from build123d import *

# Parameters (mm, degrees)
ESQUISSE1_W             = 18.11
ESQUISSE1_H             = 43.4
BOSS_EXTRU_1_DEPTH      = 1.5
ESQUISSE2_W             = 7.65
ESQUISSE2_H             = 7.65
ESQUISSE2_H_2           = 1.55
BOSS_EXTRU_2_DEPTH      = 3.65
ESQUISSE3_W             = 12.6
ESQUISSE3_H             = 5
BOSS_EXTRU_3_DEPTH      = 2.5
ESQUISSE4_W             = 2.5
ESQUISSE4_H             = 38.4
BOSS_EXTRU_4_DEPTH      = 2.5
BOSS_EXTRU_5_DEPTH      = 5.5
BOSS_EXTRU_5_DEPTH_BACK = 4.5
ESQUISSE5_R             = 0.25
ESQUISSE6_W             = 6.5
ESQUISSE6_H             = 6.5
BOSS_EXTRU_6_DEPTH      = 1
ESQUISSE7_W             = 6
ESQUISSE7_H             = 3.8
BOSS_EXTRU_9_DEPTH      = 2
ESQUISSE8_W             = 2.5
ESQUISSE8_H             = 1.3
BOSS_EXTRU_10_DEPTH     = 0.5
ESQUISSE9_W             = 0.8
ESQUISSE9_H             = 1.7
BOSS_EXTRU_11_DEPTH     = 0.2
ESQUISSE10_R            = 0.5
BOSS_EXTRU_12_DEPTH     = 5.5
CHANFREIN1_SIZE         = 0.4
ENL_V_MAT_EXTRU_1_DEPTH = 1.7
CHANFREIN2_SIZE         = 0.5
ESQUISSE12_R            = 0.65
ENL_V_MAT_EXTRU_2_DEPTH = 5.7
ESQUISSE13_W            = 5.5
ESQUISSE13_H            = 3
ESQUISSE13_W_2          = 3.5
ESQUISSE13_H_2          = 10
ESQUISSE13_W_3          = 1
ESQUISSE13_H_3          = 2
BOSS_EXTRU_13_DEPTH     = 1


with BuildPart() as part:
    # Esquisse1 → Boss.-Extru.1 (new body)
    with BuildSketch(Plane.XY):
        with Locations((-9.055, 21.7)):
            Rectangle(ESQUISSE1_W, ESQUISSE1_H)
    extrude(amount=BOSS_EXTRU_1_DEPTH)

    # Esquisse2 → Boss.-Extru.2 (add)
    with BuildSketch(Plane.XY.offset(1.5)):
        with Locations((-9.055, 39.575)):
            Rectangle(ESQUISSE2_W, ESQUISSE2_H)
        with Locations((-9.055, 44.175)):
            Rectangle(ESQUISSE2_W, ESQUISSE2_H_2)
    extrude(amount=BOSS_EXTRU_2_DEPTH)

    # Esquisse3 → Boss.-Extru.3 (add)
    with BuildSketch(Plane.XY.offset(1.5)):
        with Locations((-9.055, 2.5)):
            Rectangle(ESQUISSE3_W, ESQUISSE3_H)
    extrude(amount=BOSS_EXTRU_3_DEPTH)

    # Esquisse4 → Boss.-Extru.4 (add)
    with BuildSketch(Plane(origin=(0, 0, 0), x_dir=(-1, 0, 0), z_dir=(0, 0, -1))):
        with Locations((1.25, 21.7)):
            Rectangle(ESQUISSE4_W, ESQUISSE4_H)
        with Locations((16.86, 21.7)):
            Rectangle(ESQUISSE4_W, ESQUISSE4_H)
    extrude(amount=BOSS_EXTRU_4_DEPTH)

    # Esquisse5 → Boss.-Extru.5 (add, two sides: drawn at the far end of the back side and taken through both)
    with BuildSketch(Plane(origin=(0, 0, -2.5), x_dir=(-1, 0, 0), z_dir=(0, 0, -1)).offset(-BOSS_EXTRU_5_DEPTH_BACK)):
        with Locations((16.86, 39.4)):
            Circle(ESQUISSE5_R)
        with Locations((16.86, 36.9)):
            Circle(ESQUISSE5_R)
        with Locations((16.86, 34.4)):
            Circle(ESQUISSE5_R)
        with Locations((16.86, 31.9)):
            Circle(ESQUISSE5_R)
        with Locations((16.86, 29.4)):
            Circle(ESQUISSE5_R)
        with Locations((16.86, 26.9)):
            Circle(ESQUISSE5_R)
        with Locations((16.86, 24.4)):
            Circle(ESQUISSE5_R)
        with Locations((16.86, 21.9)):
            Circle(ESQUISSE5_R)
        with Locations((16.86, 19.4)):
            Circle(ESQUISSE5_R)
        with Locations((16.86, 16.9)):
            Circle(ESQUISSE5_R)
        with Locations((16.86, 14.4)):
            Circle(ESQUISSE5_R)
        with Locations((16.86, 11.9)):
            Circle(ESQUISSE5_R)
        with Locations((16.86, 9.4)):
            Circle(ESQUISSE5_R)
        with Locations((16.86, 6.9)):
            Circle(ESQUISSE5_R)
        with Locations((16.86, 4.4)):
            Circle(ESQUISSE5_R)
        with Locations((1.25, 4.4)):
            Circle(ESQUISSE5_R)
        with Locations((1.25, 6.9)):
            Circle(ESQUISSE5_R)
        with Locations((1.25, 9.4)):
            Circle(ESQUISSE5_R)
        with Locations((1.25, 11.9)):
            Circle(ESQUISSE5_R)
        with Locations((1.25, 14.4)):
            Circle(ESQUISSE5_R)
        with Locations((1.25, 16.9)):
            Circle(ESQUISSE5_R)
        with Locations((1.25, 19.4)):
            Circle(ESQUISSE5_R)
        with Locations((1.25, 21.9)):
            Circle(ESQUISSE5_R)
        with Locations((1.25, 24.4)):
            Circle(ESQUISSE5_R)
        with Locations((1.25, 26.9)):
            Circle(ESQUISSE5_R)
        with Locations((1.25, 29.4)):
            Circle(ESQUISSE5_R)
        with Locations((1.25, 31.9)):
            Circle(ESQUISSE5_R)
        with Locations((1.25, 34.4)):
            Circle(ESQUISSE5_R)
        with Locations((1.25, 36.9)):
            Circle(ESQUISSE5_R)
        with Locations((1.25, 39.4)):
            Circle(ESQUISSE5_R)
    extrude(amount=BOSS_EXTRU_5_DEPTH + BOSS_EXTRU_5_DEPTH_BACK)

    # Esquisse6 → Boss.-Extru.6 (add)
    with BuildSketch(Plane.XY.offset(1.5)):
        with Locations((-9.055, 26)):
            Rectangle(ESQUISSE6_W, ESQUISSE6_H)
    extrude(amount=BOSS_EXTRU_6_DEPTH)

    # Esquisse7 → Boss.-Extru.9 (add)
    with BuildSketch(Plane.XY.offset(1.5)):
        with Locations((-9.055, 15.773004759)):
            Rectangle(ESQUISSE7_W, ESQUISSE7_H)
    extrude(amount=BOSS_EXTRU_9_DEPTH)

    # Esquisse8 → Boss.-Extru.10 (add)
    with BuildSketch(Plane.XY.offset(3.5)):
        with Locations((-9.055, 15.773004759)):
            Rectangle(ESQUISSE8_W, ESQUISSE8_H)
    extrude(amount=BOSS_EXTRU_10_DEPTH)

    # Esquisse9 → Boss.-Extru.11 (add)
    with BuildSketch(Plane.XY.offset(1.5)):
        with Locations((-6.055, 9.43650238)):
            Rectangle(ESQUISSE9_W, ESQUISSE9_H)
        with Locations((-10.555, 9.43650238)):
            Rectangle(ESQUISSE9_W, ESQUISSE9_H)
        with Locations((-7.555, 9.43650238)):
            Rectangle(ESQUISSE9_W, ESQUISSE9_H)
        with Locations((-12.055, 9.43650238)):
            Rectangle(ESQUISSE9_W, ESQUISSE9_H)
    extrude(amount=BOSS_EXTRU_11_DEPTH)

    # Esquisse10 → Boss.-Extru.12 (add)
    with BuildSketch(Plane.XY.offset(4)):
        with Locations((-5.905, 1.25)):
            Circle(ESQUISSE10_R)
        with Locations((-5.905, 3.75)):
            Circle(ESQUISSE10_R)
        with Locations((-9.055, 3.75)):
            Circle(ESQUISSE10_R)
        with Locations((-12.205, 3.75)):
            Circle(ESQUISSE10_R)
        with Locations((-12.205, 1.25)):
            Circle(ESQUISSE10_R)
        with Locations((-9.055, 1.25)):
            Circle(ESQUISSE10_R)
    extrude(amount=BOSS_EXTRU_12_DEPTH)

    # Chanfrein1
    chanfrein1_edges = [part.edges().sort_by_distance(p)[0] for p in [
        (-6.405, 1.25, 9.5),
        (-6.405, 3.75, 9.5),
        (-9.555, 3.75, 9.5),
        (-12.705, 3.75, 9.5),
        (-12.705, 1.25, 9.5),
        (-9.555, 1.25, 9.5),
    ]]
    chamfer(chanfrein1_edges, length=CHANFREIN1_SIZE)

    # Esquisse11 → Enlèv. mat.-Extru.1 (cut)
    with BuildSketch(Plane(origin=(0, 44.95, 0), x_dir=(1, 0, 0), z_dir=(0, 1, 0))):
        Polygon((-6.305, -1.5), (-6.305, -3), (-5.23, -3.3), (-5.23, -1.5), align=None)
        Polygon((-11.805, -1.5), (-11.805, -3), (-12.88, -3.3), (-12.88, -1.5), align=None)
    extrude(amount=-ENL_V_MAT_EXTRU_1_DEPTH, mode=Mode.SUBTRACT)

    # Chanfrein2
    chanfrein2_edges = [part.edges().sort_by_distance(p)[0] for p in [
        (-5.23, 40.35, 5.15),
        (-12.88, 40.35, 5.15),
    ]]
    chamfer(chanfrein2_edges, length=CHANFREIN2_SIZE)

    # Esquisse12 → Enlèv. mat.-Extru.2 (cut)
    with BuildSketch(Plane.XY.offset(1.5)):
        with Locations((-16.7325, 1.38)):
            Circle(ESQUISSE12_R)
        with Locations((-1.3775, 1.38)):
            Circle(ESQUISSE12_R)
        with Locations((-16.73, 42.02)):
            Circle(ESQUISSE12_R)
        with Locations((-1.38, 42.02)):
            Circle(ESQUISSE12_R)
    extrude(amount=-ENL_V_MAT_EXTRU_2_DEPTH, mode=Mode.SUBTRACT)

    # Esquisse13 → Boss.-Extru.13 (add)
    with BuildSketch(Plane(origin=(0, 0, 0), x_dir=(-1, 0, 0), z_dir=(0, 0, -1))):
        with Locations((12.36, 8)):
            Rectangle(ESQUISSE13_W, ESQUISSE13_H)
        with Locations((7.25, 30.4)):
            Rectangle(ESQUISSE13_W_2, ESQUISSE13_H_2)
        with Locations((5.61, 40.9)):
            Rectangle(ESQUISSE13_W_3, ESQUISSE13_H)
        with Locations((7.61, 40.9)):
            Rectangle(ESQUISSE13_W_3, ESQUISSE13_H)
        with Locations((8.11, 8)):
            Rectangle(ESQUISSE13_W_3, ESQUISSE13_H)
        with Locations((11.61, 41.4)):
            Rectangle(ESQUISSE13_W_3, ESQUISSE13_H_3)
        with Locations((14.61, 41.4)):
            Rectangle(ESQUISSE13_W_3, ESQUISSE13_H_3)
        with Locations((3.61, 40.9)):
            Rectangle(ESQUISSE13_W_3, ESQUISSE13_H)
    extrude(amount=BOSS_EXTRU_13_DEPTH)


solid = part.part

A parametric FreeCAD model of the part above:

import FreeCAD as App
import Part
import Sketcher
from FreeCAD import Vector


def edges_at(feature, points):
    """Names of the edges that pass closest to the given points."""
    edges = feature.Shape.Edges
    near = lambda p: min(range(len(edges)), key=lambda i: edges[i].distToShape(Part.Vertex(*p))[0])
    return sorted({f"Edge{near(p) + 1}" for p in points})


def add_polygon(sketch, points):
    """Adds a closed chain of lines whose ends are joined by coincident constraints."""
    first, n = sketch.GeometryCount, len(points)
    for a, b in zip(points, points[1:] + points[:1]):
        sketch.addGeometry(Part.LineSegment(App.Vector(*a, 0), App.Vector(*b, 0)), False)
    for i in range(n):
        sketch.addConstraint(Sketcher.Constraint("Coincident", first + i, 2, first + (i + 1) % n, 1))

doc = App.newDocument("Part")
params = doc.addObject("Spreadsheet::Sheet", "Params")
for row, (alias, value) in enumerate([
    ("sketch1_height", "43.4 mm"),
    ("sketch1_width", "18.11 mm"),
    ("pad1_length", "1.5 mm"),
    ("sketch2_height", "9.2 mm"),
    ("sketch2_width", "7.65 mm"),
    ("pad2_length", "3.65 mm"),
    ("sketch3_height", "5 mm"),
    ("sketch3_width", "12.6 mm"),
    ("pad3_length", "2.5 mm"),
    ("sketch4_width", "2.5 mm"),
    ("sketch4_height", "38.4 mm"),
    ("pad4_length", "2.5 mm"),
    ("sketch5_diameter", "0.5 mm"),
    ("pad5_length", "5.5 mm"),
    ("pad5_length2", "4.5 mm"),
    ("sketch6_width", "6.5 mm"),
    ("pad6_length", "1 mm"),
    ("sketch7_width", "6 mm"),
    ("sketch7_height", "3.8 mm"),
    ("pad7_length", "2 mm"),
    ("sketch8_width", "2.5 mm"),
    ("sketch8_height", "1.3 mm"),
    ("pad8_length", "0.5 mm"),
    ("sketch9_width", "0.8 mm"),
    ("sketch9_height", "1.7 mm"),
    ("pad9_length", "0.2 mm"),
    ("sketch10_diameter", "1 mm"),
    ("pad10_length", "5.5 mm"),
    ("chamfer_size", "0.4 mm"),
    ("sketch11_height", "1.5 mm"),
    ("sketch11_height2", "1.8 mm"),
    ("pocket1_length", "1.7 mm"),
    ("chamfer2_size", "0.5 mm"),
    ("sketch12_diameter", "1.3 mm"),
    ("pocket2_length", "5.7 mm"),
    ("sketch13_width", "1 mm"),
    ("sketch13_height", "3 mm"),
    ("sketch13_height2", "10 mm"),
    ("sketch13_height3", "2 mm"),
    ("sketch13_width2", "5.5 mm"),
    ("pad11_length", "1 mm"),
], start=1):
    params.set(f"A{row}", alias)
    params.set(f"B{row}", "=" + value)
    params.setAlias(f"B{row}", alias)

body = doc.addObject("PartDesign::Body", "Body")

sketch1 = doc.addObject("Sketcher::SketchObject", "Sketch")
body.addObject(sketch1)
sketch1.AttachmentSupport = (doc.XY_Plane, [""])
sketch1.MapMode = "FlatFace"
add_polygon(sketch1, [(-18.11, 43.4), (-18.11, 0), (0, 0), (0, 43.4)])
sketch1.addConstraint(Sketcher.Constraint("Vertical", 0))
sketch1.addConstraint(Sketcher.Constraint("Horizontal", 1))
sketch1.addConstraint(Sketcher.Constraint("Vertical", 2))
sketch1.addConstraint(Sketcher.Constraint("Horizontal", 3))
sketch1.addConstraint(Sketcher.Constraint("Coincident", 1, 2, -1, 1))
sketch1.addConstraint(Sketcher.Constraint("DistanceY", 0, 2, 0, 1, 43.4))
sketch1.addConstraint(Sketcher.Constraint("DistanceX", 1, 1, 1, 2, 18.11))
sketch1.setExpression("Constraints[9]", "Params.sketch1_height")
sketch1.setExpression("Constraints[10]", "Params.sketch1_width")
pad1 = doc.addObject("PartDesign::Pad", "Pad")
body.addObject(pad1)
pad1.Profile = sketch1
pad1.setExpression("Length", "Params.pad1_length")

sketch2 = doc.addObject("Sketcher::SketchObject", "Sketch001")
body.addObject(sketch2)
sketch2.AttachmentSupport = (doc.XY_Plane, [""])
sketch2.MapMode = "FlatFace"
sketch2.AttachmentOffset = App.Placement(Vector(0, 0, 1.5), App.Rotation())
add_polygon(sketch2, [(-12.88, 35.75), (-5.23, 35.75), (-5.23, 44.95), (-12.88, 44.95)])
sketch2.addConstraint(Sketcher.Constraint("Horizontal", 0))
sketch2.addConstraint(Sketcher.Constraint("Vertical", 1))
sketch2.addConstraint(Sketcher.Constraint("Horizontal", 2))
sketch2.addConstraint(Sketcher.Constraint("Vertical", 3))
sketch2.addConstraint(Sketcher.Constraint("DistanceY", 1, 1, 1, 2, 9.2))
sketch2.addConstraint(Sketcher.Constraint("DistanceX", 0, 1, 0, 2, 7.65))
sketch2.addConstraint(Sketcher.Constraint("DistanceX", 0, 2, -1, 1, 5.23))
sketch2.addConstraint(Sketcher.Constraint("DistanceY", -1, 1, 0, 2, 35.75))
sketch2.setExpression("Constraints[8]", "Params.sketch2_height")
sketch2.setExpression("Constraints[9]", "Params.sketch2_width")
pad2 = doc.addObject("PartDesign::Pad", "Pad001")
body.addObject(pad2)
pad2.Profile = sketch2
pad2.setExpression("Length", "Params.pad2_length")

sketch3 = doc.addObject("Sketcher::SketchObject", "Sketch002")
body.addObject(sketch3)
sketch3.AttachmentSupport = (doc.XY_Plane, [""])
sketch3.MapMode = "FlatFace"
sketch3.AttachmentOffset = App.Placement(Vector(0, 0, 1.5), App.Rotation())
add_polygon(sketch3, [(-15.355, 5), (-15.355, 0), (-2.755, 0), (-2.755, 5)])
sketch3.addConstraint(Sketcher.Constraint("Vertical", 0))
sketch3.addConstraint(Sketcher.Constraint("Horizontal", 1))
sketch3.addConstraint(Sketcher.Constraint("Vertical", 2))
sketch3.addConstraint(Sketcher.Constraint("Horizontal", 3))
sketch3.addConstraint(Sketcher.Constraint("PointOnObject", 0, 2, -1))
sketch3.addConstraint(Sketcher.Constraint("DistanceY", 0, 2, 0, 1, 5.0))
sketch3.addConstraint(Sketcher.Constraint("DistanceX", 1, 1, 1, 2, 12.6))
sketch3.addConstraint(Sketcher.Constraint("DistanceX", 0, 2, -1, 1, 15.355))
sketch3.setExpression("Constraints[9]", "Params.sketch3_height")
sketch3.setExpression("Constraints[10]", "Params.sketch3_width")
pad3 = doc.addObject("PartDesign::Pad", "Pad002")
body.addObject(pad3)
pad3.Profile = sketch3
pad3.setExpression("Length", "Params.pad3_length")

sketch4 = doc.addObject("Sketcher::SketchObject", "Sketch003")
body.addObject(sketch4)
sketch4.AttachmentSupport = (doc.XY_Plane, [""])
sketch4.MapMode = "FlatFace"
add_polygon(sketch4, [(0, 40.9), (0, 2.5), (-2.5, 2.5), (-2.5, 40.9)])
add_polygon(sketch4, [(-15.61, 40.9), (-15.61, 2.5), (-18.11, 2.5), (-18.11, 40.9)])
sketch4.addConstraint(Sketcher.Constraint("Vertical", 0))
sketch4.addConstraint(Sketcher.Constraint("Horizontal", 1))
sketch4.addConstraint(Sketcher.Constraint("Vertical", 2))
sketch4.addConstraint(Sketcher.Constraint("Horizontal", 3))
sketch4.addConstraint(Sketcher.Constraint("Vertical", 4))
sketch4.addConstraint(Sketcher.Constraint("Horizontal", 5))
sketch4.addConstraint(Sketcher.Constraint("Vertical", 6))
sketch4.addConstraint(Sketcher.Constraint("Horizontal", 7))
sketch4.addConstraint(Sketcher.Constraint("PointOnObject", 0, 2, -2))
sketch4.addConstraint(Sketcher.Constraint("Horizontal", 1, 2, 4, 2))
sketch4.addConstraint(Sketcher.Constraint("Horizontal", 3, 2, 6, 2))
sketch4.addConstraint(Sketcher.Constraint("Equal", 3, 5))
sketch4.addConstraint(Sketcher.Constraint("DistanceX", 1, 2, 1, 1, 2.5))
sketch4.addConstraint(Sketcher.Constraint("DistanceY", 0, 2, 0, 1, 38.4))
sketch4.addConstraint(Sketcher.Constraint("DistanceY", -1, 1, 0, 2, 2.5))
sketch4.addConstraint(Sketcher.Constraint("DistanceX", 4, 2, -1, 1, 15.61))
sketch4.setExpression("Constraints[20]", "Params.sketch4_width")
sketch4.setExpression("Constraints[21]", "Params.sketch4_height")
pad4 = doc.addObject("PartDesign::Pad", "Pad003")
body.addObject(pad4)
pad4.Profile = sketch4
pad4.setExpression("Length", "Params.pad4_length")
pad4.Reversed = True

sketch5 = doc.addObject("Sketcher::SketchObject", "Sketch004")
body.addObject(sketch5)
sketch5.AttachmentSupport = (doc.XY_Plane, [""])
sketch5.MapMode = "FlatFace"
sketch5.AttachmentOffset = App.Placement(Vector(0, 0, -2.5), App.Rotation())
sketch5.addGeometry(Part.Circle(Vector(-16.86, 39.4, 0), Vector(0, 0, 1), 0.25), False)
sketch5.addGeometry(Part.Circle(Vector(-16.86, 36.9, 0), Vector(0, 0, 1), 0.25), False)
sketch5.addGeometry(Part.Circle(Vector(-16.86, 34.4, 0), Vector(0, 0, 1), 0.25), False)
sketch5.addGeometry(Part.Circle(Vector(-16.86, 31.9, 0), Vector(0, 0, 1), 0.25), False)
sketch5.addGeometry(Part.Circle(Vector(-16.86, 29.4, 0), Vector(0, 0, 1), 0.25), False)
sketch5.addGeometry(Part.Circle(Vector(-16.86, 26.9, 0), Vector(0, 0, 1), 0.25), False)
sketch5.addGeometry(Part.Circle(Vector(-16.86, 24.4, 0), Vector(0, 0, 1), 0.25), False)
sketch5.addGeometry(Part.Circle(Vector(-16.86, 21.9, 0), Vector(0, 0, 1), 0.25), False)
sketch5.addGeometry(Part.Circle(Vector(-16.86, 19.4, 0), Vector(0, 0, 1), 0.25), False)
sketch5.addGeometry(Part.Circle(Vector(-16.86, 16.9, 0), Vector(0, 0, 1), 0.25), False)
sketch5.addGeometry(Part.Circle(Vector(-16.86, 14.4, 0), Vector(0, 0, 1), 0.25), False)
sketch5.addGeometry(Part.Circle(Vector(-16.86, 11.9, 0), Vector(0, 0, 1), 0.25), False)
sketch5.addGeometry(Part.Circle(Vector(-16.86, 9.4, 0), Vector(0, 0, 1), 0.25), False)
sketch5.addGeometry(Part.Circle(Vector(-16.86, 6.9, 0), Vector(0, 0, 1), 0.25), False)
sketch5.addGeometry(Part.Circle(Vector(-16.86, 4.4, 0), Vector(0, 0, 1), 0.25), False)
sketch5.addGeometry(Part.Circle(Vector(-1.25, 4.4, 0), Vector(0, 0, 1), 0.25), False)
sketch5.addGeometry(Part.Circle(Vector(-1.25, 6.9, 0), Vector(0, 0, 1), 0.25), False)
sketch5.addGeometry(Part.Circle(Vector(-1.25, 9.4, 0), Vector(0, 0, 1), 0.25), False)
sketch5.addGeometry(Part.Circle(Vector(-1.25, 11.9, 0), Vector(0, 0, 1), 0.25), False)
sketch5.addGeometry(Part.Circle(Vector(-1.25, 14.4, 0), Vector(0, 0, 1), 0.25), False)
sketch5.addGeometry(Part.Circle(Vector(-1.25, 16.9, 0), Vector(0, 0, 1), 0.25), False)
sketch5.addGeometry(Part.Circle(Vector(-1.25, 19.4, 0), Vector(0, 0, 1), 0.25), False)
sketch5.addGeometry(Part.Circle(Vector(-1.25, 21.9, 0), Vector(0, 0, 1), 0.25), False)
sketch5.addGeometry(Part.Circle(Vector(-1.25, 24.4, 0), Vector(0, 0, 1), 0.25), False)
sketch5.addGeometry(Part.Circle(Vector(-1.25, 26.9, 0), Vector(0, 0, 1), 0.25), False)
sketch5.addGeometry(Part.Circle(Vector(-1.25, 29.4, 0), Vector(0, 0, 1), 0.25), False)
sketch5.addGeometry(Part.Circle(Vector(-1.25, 31.9, 0), Vector(0, 0, 1), 0.25), False)
sketch5.addGeometry(Part.Circle(Vector(-1.25, 34.4, 0), Vector(0, 0, 1), 0.25), False)
sketch5.addGeometry(Part.Circle(Vector(-1.25, 36.9, 0), Vector(0, 0, 1), 0.25), False)
sketch5.addGeometry(Part.Circle(Vector(-1.25, 39.4, 0), Vector(0, 0, 1), 0.25), False)
sketch5.addConstraint(Sketcher.Constraint("Equal", 0, 1))
sketch5.addConstraint(Sketcher.Constraint("Equal", 1, 2))
sketch5.addConstraint(Sketcher.Constraint("Equal", 2, 3))
sketch5.addConstraint(Sketcher.Constraint("Equal", 3, 4))
sketch5.addConstraint(Sketcher.Constraint("Equal", 4, 5))
sketch5.addConstraint(Sketcher.Constraint("Equal", 5, 6))
sketch5.addConstraint(Sketcher.Constraint("Equal", 6, 7))
sketch5.addConstraint(Sketcher.Constraint("Equal", 7, 8))
sketch5.addConstraint(Sketcher.Constraint("Equal", 8, 9))
sketch5.addConstraint(Sketcher.Constraint("Equal", 9, 10))
sketch5.addConstraint(Sketcher.Constraint("Equal", 10, 11))
sketch5.addConstraint(Sketcher.Constraint("Equal", 11, 12))
sketch5.addConstraint(Sketcher.Constraint("Equal", 12, 13))
sketch5.addConstraint(Sketcher.Constraint("Equal", 13, 14))
sketch5.addConstraint(Sketcher.Constraint("Equal", 14, 15))
sketch5.addConstraint(Sketcher.Constraint("Equal", 15, 16))
sketch5.addConstraint(Sketcher.Constraint("Equal", 16, 17))
sketch5.addConstraint(Sketcher.Constraint("Equal", 17, 18))
sketch5.addConstraint(Sketcher.Constraint("Equal", 18, 19))
sketch5.addConstraint(Sketcher.Constraint("Equal", 19, 20))
sketch5.addConstraint(Sketcher.Constraint("Equal", 20, 21))
sketch5.addConstraint(Sketcher.Constraint("Equal", 21, 22))
sketch5.addConstraint(Sketcher.Constraint("Equal", 22, 23))
sketch5.addConstraint(Sketcher.Constraint("Equal", 23, 24))
sketch5.addConstraint(Sketcher.Constraint("Equal", 24, 25))
sketch5.addConstraint(Sketcher.Constraint("Equal", 25, 26))
sketch5.addConstraint(Sketcher.Constraint("Equal", 26, 27))
sketch5.addConstraint(Sketcher.Constraint("Equal", 27, 28))
sketch5.addConstraint(Sketcher.Constraint("Equal", 28, 29))
sketch5.addConstraint(Sketcher.Constraint("Horizontal", 14, 3, 15, 3))
sketch5.addConstraint(Sketcher.Constraint("Horizontal", 13, 3, 16, 3))
sketch5.addConstraint(Sketcher.Constraint("Horizontal", 12, 3, 17, 3))
sketch5.addConstraint(Sketcher.Constraint("Horizontal", 11, 3, 18, 3))
sketch5.addConstraint(Sketcher.Constraint("Horizontal", 10, 3, 19, 3))
sketch5.addConstraint(Sketcher.Constraint("Horizontal", 9, 3, 20, 3))
sketch5.addConstraint(Sketcher.Constraint("Horizontal", 8, 3, 21, 3))
sketch5.addConstraint(Sketcher.Constraint("Horizontal", 7, 3, 22, 3))
sketch5.addConstraint(Sketcher.Constraint("Horizontal", 6, 3, 23, 3))
sketch5.addConstraint(Sketcher.Constraint("Horizontal", 5, 3, 24, 3))
sketch5.addConstraint(Sketcher.Constraint("Horizontal", 4, 3, 25, 3))
sketch5.addConstraint(Sketcher.Constraint("Horizontal", 3, 3, 26, 3))
sketch5.addConstraint(Sketcher.Constraint("Horizontal", 2, 3, 27, 3))
sketch5.addConstraint(Sketcher.Constraint("Horizontal", 1, 3, 28, 3))
sketch5.addConstraint(Sketcher.Constraint("Horizontal", 0, 3, 29, 3))
sketch5.addConstraint(Sketcher.Constraint("Vertical", 0, 3, 1, 3))
sketch5.addConstraint(Sketcher.Constraint("Vertical", 1, 3, 2, 3))
sketch5.addConstraint(Sketcher.Constraint("Vertical", 2, 3, 3, 3))
sketch5.addConstraint(Sketcher.Constraint("Vertical", 3, 3, 4, 3))
sketch5.addConstraint(Sketcher.Constraint("Vertical", 4, 3, 5, 3))
sketch5.addConstraint(Sketcher.Constraint("Vertical", 5, 3, 6, 3))
sketch5.addConstraint(Sketcher.Constraint("Vertical", 6, 3, 7, 3))
sketch5.addConstraint(Sketcher.Constraint("Vertical", 7, 3, 8, 3))
sketch5.addConstraint(Sketcher.Constraint("Vertical", 8, 3, 9, 3))
sketch5.addConstraint(Sketcher.Constraint("Vertical", 9, 3, 10, 3))
sketch5.addConstraint(Sketcher.Constraint("Vertical", 10, 3, 11, 3))
sketch5.addConstraint(Sketcher.Constraint("Vertical", 11, 3, 12, 3))
sketch5.addConstraint(Sketcher.Constraint("Vertical", 12, 3, 13, 3))
sketch5.addConstraint(Sketcher.Constraint("Vertical", 13, 3, 14, 3))
sketch5.addConstraint(Sketcher.Constraint("Vertical", 15, 3, 16, 3))
sketch5.addConstraint(Sketcher.Constraint("Vertical", 16, 3, 17, 3))
sketch5.addConstraint(Sketcher.Constraint("Vertical", 17, 3, 18, 3))
sketch5.addConstraint(Sketcher.Constraint("Vertical", 18, 3, 19, 3))
sketch5.addConstraint(Sketcher.Constraint("Vertical", 19, 3, 20, 3))
sketch5.addConstraint(Sketcher.Constraint("Vertical", 20, 3, 21, 3))
sketch5.addConstraint(Sketcher.Constraint("Vertical", 21, 3, 22, 3))
sketch5.addConstraint(Sketcher.Constraint("Vertical", 22, 3, 23, 3))
sketch5.addConstraint(Sketcher.Constraint("Vertical", 23, 3, 24, 3))
sketch5.addConstraint(Sketcher.Constraint("Vertical", 24, 3, 25, 3))
sketch5.addConstraint(Sketcher.Constraint("Vertical", 25, 3, 26, 3))
sketch5.addConstraint(Sketcher.Constraint("Vertical", 26, 3, 27, 3))
sketch5.addConstraint(Sketcher.Constraint("Vertical", 27, 3, 28, 3))
sketch5.addConstraint(Sketcher.Constraint("Vertical", 28, 3, 29, 3))
sketch5.addConstraint(Sketcher.Constraint("Diameter", 0, 0.5))
sketch5.addConstraint(Sketcher.Constraint("DistanceY", 2, 3, 0, 3, 5.0))
sketch5.addConstraint(Sketcher.Constraint("DistanceY", 3, 3, 1, 3, 5.0))
sketch5.addConstraint(Sketcher.Constraint("DistanceY", 4, 3, 2, 3, 5.0))
sketch5.addConstraint(Sketcher.Constraint("DistanceY", 5, 3, 3, 3, 5.0))
sketch5.addConstraint(Sketcher.Constraint("DistanceY", 6, 3, 4, 3, 5.0))
sketch5.addConstraint(Sketcher.Constraint("DistanceY", 7, 3, 5, 3, 5.0))
sketch5.addConstraint(Sketcher.Constraint("DistanceY", 8, 3, 6, 3, 5.0))
sketch5.addConstraint(Sketcher.Constraint("DistanceY", 9, 3, 7, 3, 5.0))
sketch5.addConstraint(Sketcher.Constraint("DistanceY", 10, 3, 8, 3, 5.0))
sketch5.addConstraint(Sketcher.Constraint("DistanceY", 11, 3, 9, 3, 5.0))
sketch5.addConstraint(Sketcher.Constraint("DistanceY", 12, 3, 10, 3, 5.0))
sketch5.addConstraint(Sketcher.Constraint("DistanceY", 13, 3, 11, 3, 5.0))
sketch5.addConstraint(Sketcher.Constraint("DistanceY", 14, 3, 12, 3, 5.0))
sketch5.addConstraint(Sketcher.Constraint("DistanceY", -1, 1, 0, 3, 39.4))
sketch5.addConstraint(Sketcher.Constraint("DistanceY", -1, 1, 1, 3, 36.9))
sketch5.addConstraint(Sketcher.Constraint("DistanceX", 0, 3, -1, 1, 16.86))
sketch5.addConstraint(Sketcher.Constraint("DistanceX", 15, 3, -1, 1, 1.25))
sketch5.setExpression("Constraints[72]", "Params.sketch5_diameter")
pad5 = doc.addObject("PartDesign::Pad", "Pad004")
body.addObject(pad5)
pad5.Profile = sketch5
pad5.Type = "TwoLengths"
pad5.setExpression("Length", "Params.pad5_length")
pad5.setExpression("Length2", "Params.pad5_length2")
pad5.Reversed = True

sketch6 = doc.addObject("Sketcher::SketchObject", "Sketch005")
body.addObject(sketch6)
sketch6.AttachmentSupport = (doc.XY_Plane, [""])
sketch6.MapMode = "FlatFace"
sketch6.AttachmentOffset = App.Placement(Vector(0, 0, 1.5), App.Rotation())
add_polygon(sketch6, [(-12.305, 29.25), (-12.305, 22.75), (-5.805, 22.75), (-5.805, 29.25)])
sketch6.addConstraint(Sketcher.Constraint("Vertical", 0))
sketch6.addConstraint(Sketcher.Constraint("Horizontal", 1))
sketch6.addConstraint(Sketcher.Constraint("Vertical", 2))
sketch6.addConstraint(Sketcher.Constraint("Horizontal", 3))
sketch6.addConstraint(Sketcher.Constraint("Equal", 3, 0))
sketch6.addConstraint(Sketcher.Constraint("DistanceX", 1, 1, 1, 2, 6.5))
sketch6.addConstraint(Sketcher.Constraint("DistanceY", -1, 1, 0, 2, 22.75))
sketch6.addConstraint(Sketcher.Constraint("DistanceX", 0, 2, -1, 1, 12.305))
sketch6.setExpression("Constraints[9]", "Params.sketch6_width")
pad6 = doc.addObject("PartDesign::Pad", "Pad005")
body.addObject(pad6)
pad6.Profile = sketch6
pad6.setExpression("Length", "Params.pad6_length")

sketch7 = doc.addObject("Sketcher::SketchObject", "Sketch006")
body.addObject(sketch7)
sketch7.AttachmentSupport = (doc.XY_Plane, [""])
sketch7.MapMode = "FlatFace"
sketch7.AttachmentOffset = App.Placement(Vector(0, 0, 1.5), App.Rotation())
add_polygon(sketch7, [(-12.055, 17.673005), (-12.055, 13.873005), (-6.055, 13.873005), (-6.055, 17.673005)])
sketch7.addConstraint(Sketcher.Constraint("Vertical", 0))
sketch7.addConstraint(Sketcher.Constraint("Horizontal", 1))
sketch7.addConstraint(Sketcher.Constraint("Vertical", 2))
sketch7.addConstraint(Sketcher.Constraint("Horizontal", 3))
sketch7.addConstraint(Sketcher.Constraint("DistanceX", 1, 1, 1, 2, 6.0))
sketch7.addConstraint(Sketcher.Constraint("DistanceY", 0, 2, 0, 1, 3.8))
sketch7.addConstraint(Sketcher.Constraint("DistanceX", 0, 2, -1, 1, 12.055))
sketch7.addConstraint(Sketcher.Constraint("DistanceY", -1, 1, 0, 2, 13.873005))
sketch7.setExpression("Constraints[8]", "Params.sketch7_width")
sketch7.setExpression("Constraints[9]", "Params.sketch7_height")
pad7 = doc.addObject("PartDesign::Pad", "Pad006")
body.addObject(pad7)
pad7.Profile = sketch7
pad7.setExpression("Length", "Params.pad7_length")

sketch8 = doc.addObject("Sketcher::SketchObject", "Sketch007")
body.addObject(sketch8)
sketch8.AttachmentSupport = (doc.XY_Plane, [""])
sketch8.MapMode = "FlatFace"
sketch8.AttachmentOffset = App.Placement(Vector(0, 0, 3.5), App.Rotation())
add_polygon(sketch8, [(-10.305, 16.423005), (-10.305, 15.123005), (-7.805, 15.123005), (-7.805, 16.423005)])
sketch8.addConstraint(Sketcher.Constraint("Vertical", 0))
sketch8.addConstraint(Sketcher.Constraint("Horizontal", 1))
sketch8.addConstraint(Sketcher.Constraint("Vertical", 2))
sketch8.addConstraint(Sketcher.Constraint("Horizontal", 3))
sketch8.addConstraint(Sketcher.Constraint("DistanceX", 1, 1, 1, 2, 2.5))
sketch8.addConstraint(Sketcher.Constraint("DistanceY", 0, 2, 0, 1, 1.3))
sketch8.addConstraint(Sketcher.Constraint("DistanceX", 0, 2, -1, 1, 10.305))
sketch8.addConstraint(Sketcher.Constraint("DistanceY", -1, 1, 0, 2, 15.123005))
sketch8.setExpression("Constraints[8]", "Params.sketch8_width")
sketch8.setExpression("Constraints[9]", "Params.sketch8_height")
pad8 = doc.addObject("PartDesign::Pad", "Pad007")
body.addObject(pad8)
pad8.Profile = sketch8
pad8.setExpression("Length", "Params.pad8_length")

sketch9 = doc.addObject("Sketcher::SketchObject", "Sketch008")
body.addObject(sketch9)
sketch9.AttachmentSupport = (doc.XY_Plane, [""])
sketch9.MapMode = "FlatFace"
sketch9.AttachmentOffset = App.Placement(Vector(0, 0, 1.5), App.Rotation())
add_polygon(sketch9, [(-6.455, 10.286502), (-6.455, 8.586502), (-5.655, 8.586502), (-5.655, 10.286502)])
add_polygon(sketch9, [(-10.955, 10.286502), (-10.955, 8.586502), (-10.155, 8.586502), (-10.155, 10.286502)])
add_polygon(sketch9, [(-7.955, 10.286502), (-7.955, 8.586502), (-7.155, 8.586502), (-7.155, 10.286502)])
add_polygon(sketch9, [(-12.455, 10.286502), (-12.455, 8.586502), (-11.655, 8.586502), (-11.655, 10.286502)])
sketch9.addConstraint(Sketcher.Constraint("Vertical", 0))
sketch9.addConstraint(Sketcher.Constraint("Horizontal", 1))
sketch9.addConstraint(Sketcher.Constraint("Vertical", 2))
sketch9.addConstraint(Sketcher.Constraint("Horizontal", 3))
sketch9.addConstraint(Sketcher.Constraint("Vertical", 4))
sketch9.addConstraint(Sketcher.Constraint("Horizontal", 5))
sketch9.addConstraint(Sketcher.Constraint("Vertical", 6))
sketch9.addConstraint(Sketcher.Constraint("Horizontal", 7))
sketch9.addConstraint(Sketcher.Constraint("Vertical", 8))
sketch9.addConstraint(Sketcher.Constraint("Horizontal", 9))
sketch9.addConstraint(Sketcher.Constraint("Vertical", 10))
sketch9.addConstraint(Sketcher.Constraint("Horizontal", 11))
sketch9.addConstraint(Sketcher.Constraint("Vertical", 12))
sketch9.addConstraint(Sketcher.Constraint("Horizontal", 13))
sketch9.addConstraint(Sketcher.Constraint("Vertical", 14))
sketch9.addConstraint(Sketcher.Constraint("Horizontal", 15))
sketch9.addConstraint(Sketcher.Constraint("Horizontal", 1, 2, 4, 2))
sketch9.addConstraint(Sketcher.Constraint("Horizontal", 3, 2, 6, 2))
sketch9.addConstraint(Sketcher.Constraint("Horizontal", 5, 2, 8, 2))
sketch9.addConstraint(Sketcher.Constraint("Horizontal", 7, 2, 10, 2))
sketch9.addConstraint(Sketcher.Constraint("Horizontal", 9, 2, 12, 2))
sketch9.addConstraint(Sketcher.Constraint("Horizontal", 11, 2, 14, 2))
sketch9.addConstraint(Sketcher.Constraint("Equal", 3, 5))
sketch9.addConstraint(Sketcher.Constraint("Equal", 7, 9))
sketch9.addConstraint(Sketcher.Constraint("Equal", 11, 13))
sketch9.addConstraint(Sketcher.Constraint("DistanceX", 1, 1, 1, 2, 0.8))
sketch9.addConstraint(Sketcher.Constraint("DistanceY", 0, 2, 0, 1, 1.7))
sketch9.addConstraint(Sketcher.Constraint("DistanceX", 4, 2, 0, 2, 4.5))
sketch9.addConstraint(Sketcher.Constraint("DistanceX", 8, 2, 0, 2, 1.5))
sketch9.addConstraint(Sketcher.Constraint("DistanceX", 12, 2, 4, 2, 1.5))
sketch9.addConstraint(Sketcher.Constraint("DistanceX", 0, 2, -1, 1, 6.455))
sketch9.addConstraint(Sketcher.Constraint("DistanceY", -1, 1, 0, 2, 8.586502))
sketch9.setExpression("Constraints[41]", "Params.sketch9_width")
sketch9.setExpression("Constraints[42]", "Params.sketch9_height")
pad9 = doc.addObject("PartDesign::Pad", "Pad008")
body.addObject(pad9)
pad9.Profile = sketch9
pad9.setExpression("Length", "Params.pad9_length")

sketch10 = doc.addObject("Sketcher::SketchObject", "Sketch009")
body.addObject(sketch10)
sketch10.AttachmentSupport = (doc.XY_Plane, [""])
sketch10.MapMode = "FlatFace"
sketch10.AttachmentOffset = App.Placement(Vector(0, 0, 4), App.Rotation())
sketch10.addGeometry(Part.Circle(Vector(-5.905, 1.25, 0), Vector(0, 0, 1), 0.5), False)
sketch10.addGeometry(Part.Circle(Vector(-5.905, 3.75, 0), Vector(0, 0, 1), 0.5), False)
sketch10.addGeometry(Part.Circle(Vector(-9.055, 3.75, 0), Vector(0, 0, 1), 0.5), False)
sketch10.addGeometry(Part.Circle(Vector(-12.205, 3.75, 0), Vector(0, 0, 1), 0.5), False)
sketch10.addGeometry(Part.Circle(Vector(-12.205, 1.25, 0), Vector(0, 0, 1), 0.5), False)
sketch10.addGeometry(Part.Circle(Vector(-9.055, 1.25, 0), Vector(0, 0, 1), 0.5), False)
sketch10.addConstraint(Sketcher.Constraint("Equal", 0, 1))
sketch10.addConstraint(Sketcher.Constraint("Equal", 1, 2))
sketch10.addConstraint(Sketcher.Constraint("Equal", 2, 3))
sketch10.addConstraint(Sketcher.Constraint("Equal", 3, 4))
sketch10.addConstraint(Sketcher.Constraint("Equal", 4, 5))
sketch10.addConstraint(Sketcher.Constraint("Horizontal", 1, 3, 2, 3))
sketch10.addConstraint(Sketcher.Constraint("Horizontal", 2, 3, 3, 3))
sketch10.addConstraint(Sketcher.Constraint("Horizontal", 0, 3, 4, 3))
sketch10.addConstraint(Sketcher.Constraint("Horizontal", 4, 3, 5, 3))
sketch10.addConstraint(Sketcher.Constraint("Vertical", 0, 3, 1, 3))
sketch10.addConstraint(Sketcher.Constraint("Vertical", 3, 3, 4, 3))
sketch10.addConstraint(Sketcher.Constraint("Vertical", 2, 3, 5, 3))
sketch10.addConstraint(Sketcher.Constraint("Diameter", 0, 1.0))
sketch10.addConstraint(Sketcher.Constraint("DistanceY", 0, 3, 1, 3, 2.5))
sketch10.addConstraint(Sketcher.Constraint("DistanceX", 3, 3, 1, 3, 6.3))
sketch10.addConstraint(Sketcher.Constraint("DistanceY", -1, 1, 0, 3, 1.25))
sketch10.addConstraint(Sketcher.Constraint("DistanceX", 2, 3, 1, 3, 3.15))
sketch10.addConstraint(Sketcher.Constraint("DistanceX", 0, 3, -1, 1, 5.905))
sketch10.setExpression("Constraints[12]", "Params.sketch10_diameter")
pad10 = doc.addObject("PartDesign::Pad", "Pad009")
body.addObject(pad10)
pad10.Profile = sketch10
pad10.setExpression("Length", "Params.pad10_length")
doc.recompute()

chamfer = doc.addObject("PartDesign::Chamfer", "Chamfer")
body.addObject(chamfer)
chamfer.Base = (pad10, edges_at(pad10, [
    (-6.405, 1.25, 9.5),
    (-6.405, 3.75, 9.5),
    (-9.555, 3.75, 9.5),
    (-12.705, 3.75, 9.5),
    (-12.705, 1.25, 9.5),
    (-9.555, 1.25, 9.5),
]))
chamfer.setExpression("Size", "Params.chamfer_size")

sketch11 = doc.addObject("Sketcher::SketchObject", "Sketch010")
body.addObject(sketch11)
sketch11.AttachmentSupport = (doc.XZ_Plane, [""])
sketch11.MapMode = "FlatFace"
sketch11.AttachmentOffset = App.Placement(Vector(0, 0, -44.95), App.Rotation())
add_polygon(sketch11, [(-6.305, 1.5), (-6.305, 3), (-5.23, 3.3), (-5.23, 1.5)])
add_polygon(sketch11, [(-11.805, 3), (-11.805, 1.5), (-12.88, 1.5), (-12.88, 3.3)])
sketch11.addConstraint(Sketcher.Constraint("Vertical", 0))
sketch11.addConstraint(Sketcher.Constraint("Vertical", 2))
sketch11.addConstraint(Sketcher.Constraint("Horizontal", 3))
sketch11.addConstraint(Sketcher.Constraint("Vertical", 4))
sketch11.addConstraint(Sketcher.Constraint("Horizontal", 5))
sketch11.addConstraint(Sketcher.Constraint("Vertical", 6))
sketch11.addConstraint(Sketcher.Constraint("Horizontal", 3, 2, 4, 2))
sketch11.addConstraint(Sketcher.Constraint("Horizontal", 1, 2, 6, 2))
sketch11.addConstraint(Sketcher.Constraint("Horizontal", 0, 2, 7, 2))
sketch11.addConstraint(Sketcher.Constraint("Equal", 3, 5))
sketch11.addConstraint(Sketcher.Constraint("DistanceY", 0, 1, 0, 2, 1.5))
sketch11.addConstraint(Sketcher.Constraint("DistanceY", 2, 2, 2, 1, 1.8))
sketch11.addConstraint(Sketcher.Constraint("DistanceY", -1, 1, 0, 2, 3.0))
sketch11.addConstraint(Sketcher.Constraint("DistanceX", 4, 2, 3, 2, 5.5))
sketch11.addConstraint(Sketcher.Constraint("DistanceX", 3, 2, 3, 1, 1.075))
sketch11.addConstraint(Sketcher.Constraint("DistanceX", 1, 2, -1, 1, 5.23))
sketch11.setExpression("Constraints[18]", "Params.sketch11_height")
sketch11.setExpression("Constraints[19]", "Params.sketch11_height2")
pocket1 = doc.addObject("PartDesign::Pocket", "Pocket")
body.addObject(pocket1)
pocket1.Profile = sketch11
pocket1.setExpression("Length", "Params.pocket1_length")
pocket1.Reversed = True
doc.recompute()

chamfer2 = doc.addObject("PartDesign::Chamfer", "Chamfer001")
body.addObject(chamfer2)
chamfer2.Base = (pocket1, edges_at(pocket1, [(-5.23, 40.35, 5.15), (-12.88, 40.35, 5.15)]))
chamfer2.setExpression("Size", "Params.chamfer2_size")

sketch12 = doc.addObject("Sketcher::SketchObject", "Sketch011")
body.addObject(sketch12)
sketch12.AttachmentSupport = (doc.XY_Plane, [""])
sketch12.MapMode = "FlatFace"
sketch12.AttachmentOffset = App.Placement(Vector(0, 0, 1.5), App.Rotation())
sketch12.addGeometry(Part.Circle(Vector(-16.7325, 1.38, 0), Vector(0, 0, 1), 0.65), False)
sketch12.addGeometry(Part.Circle(Vector(-1.3775, 1.38, 0), Vector(0, 0, 1), 0.65), False)
sketch12.addGeometry(Part.Circle(Vector(-16.73, 42.02, 0), Vector(0, 0, 1), 0.65), False)
sketch12.addGeometry(Part.Circle(Vector(-1.38, 42.02, 0), Vector(0, 0, 1), 0.65), False)
sketch12.addConstraint(Sketcher.Constraint("Equal", 0, 1))
sketch12.addConstraint(Sketcher.Constraint("Equal", 1, 2))
sketch12.addConstraint(Sketcher.Constraint("Equal", 2, 3))
sketch12.addConstraint(Sketcher.Constraint("Horizontal", 0, 3, 1, 3))
sketch12.addConstraint(Sketcher.Constraint("Horizontal", 2, 3, 3, 3))
sketch12.addConstraint(Sketcher.Constraint("Diameter", 0, 1.3))
sketch12.addConstraint(Sketcher.Constraint("DistanceY", -1, 1, 0, 3, 1.38))
sketch12.addConstraint(Sketcher.Constraint("DistanceX", 2, 3, -1, 1, 16.73))
sketch12.addConstraint(Sketcher.Constraint("DistanceY", -1, 1, 2, 3, 42.02))
sketch12.addConstraint(Sketcher.Constraint("DistanceX", 3, 3, -1, 1, 1.38))
sketch12.addConstraint(Sketcher.Constraint("DistanceX", 0, 3, 1, 3, 15.355))
sketch12.addConstraint(Sketcher.Constraint("DistanceX", 0, 3, -1, 1, 16.7325))
sketch12.setExpression("Constraints[5]", "Params.sketch12_diameter")
pocket2 = doc.addObject("PartDesign::Pocket", "Pocket001")
body.addObject(pocket2)
pocket2.Profile = sketch12
pocket2.setExpression("Length", "Params.pocket2_length")

sketch13 = doc.addObject("Sketcher::SketchObject", "Sketch012")
body.addObject(sketch13)
sketch13.AttachmentSupport = (doc.XY_Plane, [""])
sketch13.MapMode = "FlatFace"
add_polygon(sketch13, [(-9.61, 9.5), (-9.61, 6.5), (-15.11, 6.5), (-15.11, 9.5)])
add_polygon(sketch13, [(-5.5, 35.4), (-5.5, 25.4), (-9, 25.4), (-9, 35.4)])
add_polygon(sketch13, [(-5.11, 42.4), (-5.11, 39.4), (-6.11, 39.4), (-6.11, 42.4)])
add_polygon(sketch13, [(-7.11, 42.4), (-7.11, 39.4), (-8.11, 39.4), (-8.11, 42.4)])
add_polygon(sketch13, [(-7.61, 9.5), (-7.61, 6.5), (-8.61, 6.5), (-8.61, 9.5)])
add_polygon(sketch13, [(-11.11, 42.4), (-11.11, 40.4), (-12.11, 40.4), (-12.11, 42.4)])
add_polygon(sketch13, [(-14.11, 42.4), (-14.11, 40.4), (-15.11, 40.4), (-15.11, 42.4)])
add_polygon(sketch13, [(-3.11, 42.4), (-3.11, 39.4), (-4.11, 39.4), (-4.11, 42.4)])
sketch13.addConstraint(Sketcher.Constraint("Vertical", 0))
sketch13.addConstraint(Sketcher.Constraint("Horizontal", 1))
sketch13.addConstraint(Sketcher.Constraint("Vertical", 2))
sketch13.addConstraint(Sketcher.Constraint("Horizontal", 3))
sketch13.addConstraint(Sketcher.Constraint("Vertical", 4))
sketch13.addConstraint(Sketcher.Constraint("Horizontal", 5))
sketch13.addConstraint(Sketcher.Constraint("Vertical", 6))
sketch13.addConstraint(Sketcher.Constraint("Horizontal", 7))
sketch13.addConstraint(Sketcher.Constraint("Vertical", 8))
sketch13.addConstraint(Sketcher.Constraint("Horizontal", 9))
sketch13.addConstraint(Sketcher.Constraint("Vertical", 10))
sketch13.addConstraint(Sketcher.Constraint("Horizontal", 11))
sketch13.addConstraint(Sketcher.Constraint("Vertical", 12))
sketch13.addConstraint(Sketcher.Constraint("Horizontal", 13))
sketch13.addConstraint(Sketcher.Constraint("Vertical", 14))
sketch13.addConstraint(Sketcher.Constraint("Horizontal", 15))
sketch13.addConstraint(Sketcher.Constraint("Vertical", 16))
sketch13.addConstraint(Sketcher.Constraint("Horizontal", 17))
sketch13.addConstraint(Sketcher.Constraint("Vertical", 18))
sketch13.addConstraint(Sketcher.Constraint("Horizontal", 19))
sketch13.addConstraint(Sketcher.Constraint("Vertical", 20))
sketch13.addConstraint(Sketcher.Constraint("Horizontal", 21))
sketch13.addConstraint(Sketcher.Constraint("Vertical", 22))
sketch13.addConstraint(Sketcher.Constraint("Horizontal", 23))
sketch13.addConstraint(Sketcher.Constraint("Vertical", 24))
sketch13.addConstraint(Sketcher.Constraint("Horizontal", 25))
sketch13.addConstraint(Sketcher.Constraint("Vertical", 26))
sketch13.addConstraint(Sketcher.Constraint("Horizontal", 27))
sketch13.addConstraint(Sketcher.Constraint("Vertical", 28))
sketch13.addConstraint(Sketcher.Constraint("Horizontal", 29))
sketch13.addConstraint(Sketcher.Constraint("Vertical", 30))
sketch13.addConstraint(Sketcher.Constraint("Horizontal", 31))
sketch13.addConstraint(Sketcher.Constraint("Horizontal", 9, 2, 12, 2))
sketch13.addConstraint(Sketcher.Constraint("Horizontal", 11, 2, 14, 2))
sketch13.addConstraint(Sketcher.Constraint("Horizontal", 1, 2, 16, 2))
sketch13.addConstraint(Sketcher.Constraint("Horizontal", 3, 2, 18, 2))
sketch13.addConstraint(Sketcher.Constraint("Horizontal", 15, 2, 22, 2))
sketch13.addConstraint(Sketcher.Constraint("Horizontal", 21, 2, 24, 2))
sketch13.addConstraint(Sketcher.Constraint("Horizontal", 23, 2, 26, 2))
sketch13.addConstraint(Sketcher.Constraint("Horizontal", 13, 2, 28, 2))
sketch13.addConstraint(Sketcher.Constraint("Horizontal", 27, 2, 30, 2))
sketch13.addConstraint(Sketcher.Constraint("Vertical", 2, 2, 25, 2))
sketch13.addConstraint(Sketcher.Constraint("Equal", 11, 13))
sketch13.addConstraint(Sketcher.Constraint("Equal", 15, 17))
sketch13.addConstraint(Sketcher.Constraint("Equal", 19, 21))
sketch13.addConstraint(Sketcher.Constraint("Equal", 23, 25))
sketch13.addConstraint(Sketcher.Constraint("Equal", 27, 29))
sketch13.addConstraint(Sketcher.Constraint("Equal", 2, 8))
sketch13.addConstraint(Sketcher.Constraint("DistanceX", 9, 2, 9, 1, 1.0))
sketch13.addConstraint(Sketcher.Constraint("DistanceY", 0, 2, 0, 1, 3.0))
sketch13.addConstraint(Sketcher.Constraint("DistanceY", 4, 2, 4, 1, 10.0))
sketch13.addConstraint(Sketcher.Constraint("DistanceY", 20, 2, 20, 1, 2.0))
sketch13.addConstraint(Sketcher.Constraint("DistanceX", 1, 2, 1, 1, 5.5))
sketch13.addConstraint(Sketcher.Constraint("DistanceX", 5, 2, 5, 1, 3.5))
sketch13.addConstraint(Sketcher.Constraint("DistanceX", 5, 2, -1, 1, 9.0))
sketch13.addConstraint(Sketcher.Constraint("DistanceY", 7, 2, 8, 2, 4.0))
sketch13.addConstraint(Sketcher.Constraint("DistanceX", 12, 2, 9, 2, 1.0))
sketch13.addConstraint(Sketcher.Constraint("DistanceX", 0, 2, 16, 2, 2.0))
sketch13.addConstraint(Sketcher.Constraint("DistanceX", 20, 2, 13, 2, 3.0))
sketch13.addConstraint(Sketcher.Constraint("DistanceX", 24, 2, 21, 2, 2.0))
sketch13.addConstraint(Sketcher.Constraint("DistanceX", 8, 2, 28, 2, 2.0))
sketch13.addConstraint(Sketcher.Constraint("DistanceY", -1, 1, 0, 2, 6.5))
sketch13.addConstraint(Sketcher.Constraint("DistanceY", -1, 1, 4, 2, 25.4))
sketch13.addConstraint(Sketcher.Constraint("DistanceX", 0, 2, -1, 1, 9.61))
sketch13.setExpression("Constraints[80]", "Params.sketch13_width")
sketch13.setExpression("Constraints[81]", "Params.sketch13_height")
sketch13.setExpression("Constraints[82]", "Params.sketch13_height2")
sketch13.setExpression("Constraints[83]", "Params.sketch13_height3")
sketch13.setExpression("Constraints[84]", "Params.sketch13_width2")
pad11 = doc.addObject("PartDesign::Pad", "Pad010")
body.addObject(pad11)
pad11.Profile = sketch13
pad11.setExpression("Length", "Params.pad11_length")
pad11.Reversed = True

doc.recompute()
